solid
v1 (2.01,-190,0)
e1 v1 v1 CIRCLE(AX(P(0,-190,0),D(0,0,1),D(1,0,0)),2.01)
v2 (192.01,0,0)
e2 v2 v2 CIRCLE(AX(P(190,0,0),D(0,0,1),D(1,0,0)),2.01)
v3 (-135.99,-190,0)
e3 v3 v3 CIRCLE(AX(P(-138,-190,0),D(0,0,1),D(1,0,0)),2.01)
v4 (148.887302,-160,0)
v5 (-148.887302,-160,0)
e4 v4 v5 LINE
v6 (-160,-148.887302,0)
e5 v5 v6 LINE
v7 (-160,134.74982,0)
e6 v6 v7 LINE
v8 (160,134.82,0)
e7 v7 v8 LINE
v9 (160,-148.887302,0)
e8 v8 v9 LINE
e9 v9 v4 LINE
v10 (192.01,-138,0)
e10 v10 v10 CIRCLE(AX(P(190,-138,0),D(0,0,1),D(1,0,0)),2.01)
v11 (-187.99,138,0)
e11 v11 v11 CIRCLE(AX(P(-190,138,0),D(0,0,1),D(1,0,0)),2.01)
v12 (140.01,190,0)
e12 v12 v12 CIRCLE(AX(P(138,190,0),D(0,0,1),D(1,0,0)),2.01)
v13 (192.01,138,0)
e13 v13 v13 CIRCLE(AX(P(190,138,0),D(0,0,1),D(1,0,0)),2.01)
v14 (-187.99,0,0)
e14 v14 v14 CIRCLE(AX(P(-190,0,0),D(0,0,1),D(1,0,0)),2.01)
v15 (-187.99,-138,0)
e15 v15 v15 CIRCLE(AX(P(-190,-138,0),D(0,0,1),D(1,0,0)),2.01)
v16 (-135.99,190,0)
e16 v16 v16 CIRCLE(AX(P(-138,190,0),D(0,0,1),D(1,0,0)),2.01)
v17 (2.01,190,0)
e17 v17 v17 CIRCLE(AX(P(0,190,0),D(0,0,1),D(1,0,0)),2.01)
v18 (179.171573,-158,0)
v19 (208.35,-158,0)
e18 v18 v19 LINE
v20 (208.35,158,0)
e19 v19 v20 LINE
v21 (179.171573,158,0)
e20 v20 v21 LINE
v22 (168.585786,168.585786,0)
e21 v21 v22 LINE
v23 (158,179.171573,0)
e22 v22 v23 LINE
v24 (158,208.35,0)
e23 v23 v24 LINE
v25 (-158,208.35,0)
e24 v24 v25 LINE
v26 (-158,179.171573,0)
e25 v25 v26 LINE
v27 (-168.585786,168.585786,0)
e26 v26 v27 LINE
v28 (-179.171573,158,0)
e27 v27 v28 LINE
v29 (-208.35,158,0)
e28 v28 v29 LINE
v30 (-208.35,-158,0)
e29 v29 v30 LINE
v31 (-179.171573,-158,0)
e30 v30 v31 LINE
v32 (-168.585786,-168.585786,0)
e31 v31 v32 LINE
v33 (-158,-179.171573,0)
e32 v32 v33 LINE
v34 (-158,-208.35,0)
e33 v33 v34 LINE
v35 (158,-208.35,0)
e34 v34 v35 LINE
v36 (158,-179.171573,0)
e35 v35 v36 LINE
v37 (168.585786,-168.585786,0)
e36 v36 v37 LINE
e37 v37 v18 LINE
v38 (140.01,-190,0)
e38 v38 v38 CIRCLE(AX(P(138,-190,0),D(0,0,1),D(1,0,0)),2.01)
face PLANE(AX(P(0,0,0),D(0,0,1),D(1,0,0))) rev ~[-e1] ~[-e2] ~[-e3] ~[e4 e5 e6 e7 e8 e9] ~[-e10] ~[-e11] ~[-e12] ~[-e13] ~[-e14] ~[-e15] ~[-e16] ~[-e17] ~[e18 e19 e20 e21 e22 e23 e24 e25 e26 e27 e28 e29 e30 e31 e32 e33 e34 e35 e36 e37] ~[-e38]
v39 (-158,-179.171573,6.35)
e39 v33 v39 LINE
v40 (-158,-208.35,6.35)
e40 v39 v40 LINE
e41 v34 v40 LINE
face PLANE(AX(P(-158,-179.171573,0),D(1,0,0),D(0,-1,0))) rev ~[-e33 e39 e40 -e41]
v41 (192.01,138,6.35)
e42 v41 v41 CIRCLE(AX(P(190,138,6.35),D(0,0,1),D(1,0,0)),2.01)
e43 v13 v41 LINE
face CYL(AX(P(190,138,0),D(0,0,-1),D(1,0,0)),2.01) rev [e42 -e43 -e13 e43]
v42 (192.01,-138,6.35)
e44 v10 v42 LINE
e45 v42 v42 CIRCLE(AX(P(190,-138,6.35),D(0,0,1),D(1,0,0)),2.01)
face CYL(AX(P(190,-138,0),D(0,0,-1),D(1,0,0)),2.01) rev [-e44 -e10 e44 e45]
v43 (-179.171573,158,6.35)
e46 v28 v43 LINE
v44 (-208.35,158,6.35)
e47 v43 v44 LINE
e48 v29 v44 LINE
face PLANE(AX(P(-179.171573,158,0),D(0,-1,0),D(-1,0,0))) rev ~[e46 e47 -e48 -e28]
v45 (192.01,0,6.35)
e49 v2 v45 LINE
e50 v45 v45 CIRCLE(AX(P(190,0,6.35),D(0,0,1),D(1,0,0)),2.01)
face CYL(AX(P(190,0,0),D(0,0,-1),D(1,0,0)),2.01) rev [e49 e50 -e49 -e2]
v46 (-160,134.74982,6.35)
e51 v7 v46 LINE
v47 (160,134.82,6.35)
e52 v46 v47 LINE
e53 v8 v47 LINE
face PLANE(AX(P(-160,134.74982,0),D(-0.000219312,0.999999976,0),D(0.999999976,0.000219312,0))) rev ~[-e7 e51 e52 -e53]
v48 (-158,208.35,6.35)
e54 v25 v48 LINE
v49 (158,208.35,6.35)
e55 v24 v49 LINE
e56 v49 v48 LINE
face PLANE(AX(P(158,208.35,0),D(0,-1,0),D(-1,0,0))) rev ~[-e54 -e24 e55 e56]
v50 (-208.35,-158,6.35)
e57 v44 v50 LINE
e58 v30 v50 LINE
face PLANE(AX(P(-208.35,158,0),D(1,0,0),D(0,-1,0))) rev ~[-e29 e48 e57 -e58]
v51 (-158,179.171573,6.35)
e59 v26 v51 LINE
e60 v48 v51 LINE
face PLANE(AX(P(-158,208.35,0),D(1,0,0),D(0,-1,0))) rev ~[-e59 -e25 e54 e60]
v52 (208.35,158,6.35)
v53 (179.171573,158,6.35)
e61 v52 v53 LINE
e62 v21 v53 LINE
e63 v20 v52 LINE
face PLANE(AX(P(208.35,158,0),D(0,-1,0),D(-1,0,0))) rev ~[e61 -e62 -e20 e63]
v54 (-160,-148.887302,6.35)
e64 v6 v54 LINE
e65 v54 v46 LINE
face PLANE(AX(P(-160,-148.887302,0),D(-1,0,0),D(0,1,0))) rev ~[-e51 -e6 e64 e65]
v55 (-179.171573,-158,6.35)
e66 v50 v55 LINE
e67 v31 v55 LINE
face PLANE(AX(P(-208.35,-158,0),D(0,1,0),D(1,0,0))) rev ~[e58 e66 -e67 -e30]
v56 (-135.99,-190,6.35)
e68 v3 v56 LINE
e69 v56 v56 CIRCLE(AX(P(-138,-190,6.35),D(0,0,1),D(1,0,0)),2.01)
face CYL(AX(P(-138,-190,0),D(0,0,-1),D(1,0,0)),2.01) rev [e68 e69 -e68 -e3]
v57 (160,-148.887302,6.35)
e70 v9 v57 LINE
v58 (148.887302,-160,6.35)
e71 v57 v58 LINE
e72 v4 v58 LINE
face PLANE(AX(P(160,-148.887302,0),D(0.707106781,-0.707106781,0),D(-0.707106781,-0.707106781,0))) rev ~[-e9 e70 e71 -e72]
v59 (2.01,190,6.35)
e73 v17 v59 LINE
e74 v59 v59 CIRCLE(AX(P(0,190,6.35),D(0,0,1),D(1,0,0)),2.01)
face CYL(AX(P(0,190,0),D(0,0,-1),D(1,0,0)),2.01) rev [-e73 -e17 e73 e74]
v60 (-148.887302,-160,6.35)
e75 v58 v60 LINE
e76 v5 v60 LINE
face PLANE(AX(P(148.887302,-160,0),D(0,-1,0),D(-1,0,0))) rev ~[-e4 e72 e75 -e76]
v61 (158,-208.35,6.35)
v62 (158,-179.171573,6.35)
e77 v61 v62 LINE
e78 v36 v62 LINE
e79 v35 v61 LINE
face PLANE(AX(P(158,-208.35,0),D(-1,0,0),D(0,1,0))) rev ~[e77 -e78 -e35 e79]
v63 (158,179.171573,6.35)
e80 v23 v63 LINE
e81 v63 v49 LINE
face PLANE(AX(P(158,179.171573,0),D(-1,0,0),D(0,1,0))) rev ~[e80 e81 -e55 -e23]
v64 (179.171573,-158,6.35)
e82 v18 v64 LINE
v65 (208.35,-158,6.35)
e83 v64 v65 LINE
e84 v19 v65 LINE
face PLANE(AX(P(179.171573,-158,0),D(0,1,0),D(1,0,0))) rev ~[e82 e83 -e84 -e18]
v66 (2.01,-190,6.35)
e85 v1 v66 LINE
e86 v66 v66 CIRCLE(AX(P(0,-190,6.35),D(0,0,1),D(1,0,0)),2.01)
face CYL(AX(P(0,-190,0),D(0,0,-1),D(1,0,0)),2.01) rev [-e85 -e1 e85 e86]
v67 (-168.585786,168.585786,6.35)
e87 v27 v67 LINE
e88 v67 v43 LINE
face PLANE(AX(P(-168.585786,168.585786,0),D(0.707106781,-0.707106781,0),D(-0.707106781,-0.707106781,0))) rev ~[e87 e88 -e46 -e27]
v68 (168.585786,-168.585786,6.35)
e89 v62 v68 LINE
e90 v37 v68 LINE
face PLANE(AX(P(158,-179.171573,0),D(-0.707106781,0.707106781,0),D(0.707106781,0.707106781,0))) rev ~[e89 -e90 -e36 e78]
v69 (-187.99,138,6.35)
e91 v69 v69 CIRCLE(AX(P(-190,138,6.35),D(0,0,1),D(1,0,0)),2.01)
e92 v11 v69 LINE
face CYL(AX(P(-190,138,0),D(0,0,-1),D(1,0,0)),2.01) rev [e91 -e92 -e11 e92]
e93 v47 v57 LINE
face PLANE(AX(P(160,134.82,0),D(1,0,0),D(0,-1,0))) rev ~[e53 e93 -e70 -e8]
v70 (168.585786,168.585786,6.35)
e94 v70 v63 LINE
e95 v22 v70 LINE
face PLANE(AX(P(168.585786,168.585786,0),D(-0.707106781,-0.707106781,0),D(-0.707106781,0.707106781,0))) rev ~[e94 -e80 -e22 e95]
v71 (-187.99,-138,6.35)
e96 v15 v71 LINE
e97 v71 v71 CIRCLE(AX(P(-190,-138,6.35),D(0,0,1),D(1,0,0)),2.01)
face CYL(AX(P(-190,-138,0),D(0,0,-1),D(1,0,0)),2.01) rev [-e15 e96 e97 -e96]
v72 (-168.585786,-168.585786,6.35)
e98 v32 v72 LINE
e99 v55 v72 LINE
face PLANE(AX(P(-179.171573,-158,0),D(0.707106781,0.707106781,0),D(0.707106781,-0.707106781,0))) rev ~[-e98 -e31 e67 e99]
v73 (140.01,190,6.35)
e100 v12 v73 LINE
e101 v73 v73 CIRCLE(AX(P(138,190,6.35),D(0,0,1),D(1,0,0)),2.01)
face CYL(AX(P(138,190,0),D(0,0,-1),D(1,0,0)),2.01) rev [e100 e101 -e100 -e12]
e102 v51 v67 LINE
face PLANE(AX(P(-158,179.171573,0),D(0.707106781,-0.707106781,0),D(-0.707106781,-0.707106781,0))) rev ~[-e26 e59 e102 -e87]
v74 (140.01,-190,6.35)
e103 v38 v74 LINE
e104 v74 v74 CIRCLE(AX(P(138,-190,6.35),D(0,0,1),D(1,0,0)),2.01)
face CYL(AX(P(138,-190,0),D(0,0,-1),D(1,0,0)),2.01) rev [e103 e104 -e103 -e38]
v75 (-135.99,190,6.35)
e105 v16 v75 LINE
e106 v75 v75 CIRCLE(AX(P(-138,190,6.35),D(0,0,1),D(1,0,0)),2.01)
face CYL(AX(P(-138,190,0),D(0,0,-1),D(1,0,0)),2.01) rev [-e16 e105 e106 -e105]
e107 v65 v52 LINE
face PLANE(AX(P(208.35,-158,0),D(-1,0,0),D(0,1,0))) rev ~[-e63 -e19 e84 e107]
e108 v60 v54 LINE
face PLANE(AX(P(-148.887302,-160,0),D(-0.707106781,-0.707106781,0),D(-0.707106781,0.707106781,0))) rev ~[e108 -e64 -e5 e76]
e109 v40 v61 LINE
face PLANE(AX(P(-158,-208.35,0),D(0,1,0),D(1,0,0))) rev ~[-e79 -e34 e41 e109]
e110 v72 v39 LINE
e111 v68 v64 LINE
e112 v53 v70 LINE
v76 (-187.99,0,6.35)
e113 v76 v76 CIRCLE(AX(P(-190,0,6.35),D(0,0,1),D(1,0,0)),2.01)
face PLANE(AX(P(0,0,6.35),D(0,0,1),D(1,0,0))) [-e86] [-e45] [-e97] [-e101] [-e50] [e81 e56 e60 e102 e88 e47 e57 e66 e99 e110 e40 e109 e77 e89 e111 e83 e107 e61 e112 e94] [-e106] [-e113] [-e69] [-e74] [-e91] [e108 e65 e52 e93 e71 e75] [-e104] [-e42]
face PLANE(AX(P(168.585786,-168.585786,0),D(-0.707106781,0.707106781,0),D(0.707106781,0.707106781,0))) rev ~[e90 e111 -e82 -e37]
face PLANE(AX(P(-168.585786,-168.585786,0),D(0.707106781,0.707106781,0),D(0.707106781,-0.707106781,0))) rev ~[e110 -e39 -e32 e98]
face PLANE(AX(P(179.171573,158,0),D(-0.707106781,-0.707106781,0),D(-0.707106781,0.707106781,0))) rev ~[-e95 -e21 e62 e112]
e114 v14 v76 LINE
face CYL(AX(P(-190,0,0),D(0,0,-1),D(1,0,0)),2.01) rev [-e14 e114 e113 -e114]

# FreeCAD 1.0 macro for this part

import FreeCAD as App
import Part
import Sketcher

V = App.Vector
Q = App.Units.Quantity


def add_polygon(sketch, points):
    """Adds a closed chain of lines whose ends are joined by coincident constraints."""
    first, n = sketch.GeometryCount, len(points)
    for a, b in zip(points, points[1:] + points[:1]):
        sketch.addGeometry(Part.LineSegment(App.Vector(*a, 0), App.Vector(*b, 0)), False)
    for i in range(n):
        sketch.addConstraint(Sketcher.Constraint("Coincident", first + i, 2, first + (i + 1) % n, 1))

doc = App.newDocument("Part")
body = doc.addObject("PartDesign::Body", "Body")

sketch1 = body.newObject("Sketcher::SketchObject", "Sketch")
sketch1.AttachmentSupport = (doc.getObject("XY_Plane"), [""])
sketch1.MapMode = "FlatFace"
add_polygon(sketch1, [(-158, 208.3), (-158, 179.2), (-168.6, 168.6), (-179.2, 158), (-208.3, 158), (-208.3, -158), (-179.2, -158), (-168.6, -168.6), (-158, -179.2), (-158, -208.3), (158, -208.3), (158, -179.2), (168.6, -168.6), (179.2, -158), (208.3, -158), (208.3, 158), (179.2, 158), (168.6, 168.6), (158, 179.2), (158, 208.3)])
sketch1.addGeometry(Part.Circle(V(-138, -190, 0), V(0, 0, 1), 2), False)
sketch1.addGeometry(Part.Circle(V(-190, -138, 0), V(0, 0, 1), 2), False)
sketch1.addGeometry(Part.Circle(V(0, -190, 0), V(0, 0, 1), 2), False)
sketch1.addGeometry(Part.Circle(V(-190, 0, 0), V(0, 0, 1), 2), False)
sketch1.addGeometry(Part.Circle(V(138, -190, 0), V(0, 0, 1), 2), False)
sketch1.addGeometry(Part.Circle(V(190, -138, 0), V(0, 0, 1), 2), False)
add_polygon(sketch1, [(160, 134.8), (160, -148.9), (148.9, -160), (-148.9, -160), (-160, -148.9), (-160, 134.7)])
sketch1.addGeometry(Part.Circle(V(190, 0, 0), V(0, 0, 1), 2), False)
sketch1.addGeometry(Part.Circle(V(-190, 138, 0), V(0, 0, 1), 2), False)
sketch1.addGeometry(Part.Circle(V(-138, 190, 0), V(0, 0, 1), 2), False)
sketch1.addGeometry(Part.Circle(V(0, 190, 0), V(0, 0, 1), 2), False)
sketch1.addGeometry(Part.Circle(V(190, 138, 0), V(0, 0, 1), 2), False)
sketch1.addGeometry(Part.Circle(V(138, 190, 0), V(0, 0, 1), 2), False)
sketch1.addConstraint([
    Sketcher.Constraint("Vertical", 0),
    Sketcher.Constraint("Horizontal", 3),
    Sketcher.Constraint("Vertical", 4),
    Sketcher.Constraint("Horizontal", 5),
    Sketcher.Constraint("Vertical", 8),
    Sketcher.Constraint("Horizontal", 9),
    Sketcher.Constraint("Vertical", 10),
    Sketcher.Constraint("Horizontal", 13),
    Sketcher.Constraint("Vertical", 14),
    Sketcher.Constraint("Horizontal", 15),
    Sketcher.Constraint("Vertical", 18),
    Sketcher.Constraint("Horizontal", 19),
    Sketcher.Constraint("Vertical", 26),
    Sketcher.Constraint("Horizontal", 28),
    Sketcher.Constraint("Vertical", 30),
    Sketcher.Constraint("Equal", 20, 21),
    Sketcher.Constraint("Equal", 21, 22),
    Sketcher.Constraint("Equal", 22, 23),
    Sketcher.Constraint("Equal", 23, 24),
    Sketcher.Constraint("Equal", 24, 25),
    Sketcher.Constraint("Equal", 25, 32),
    Sketcher.Constraint("Equal", 32, 33),
    Sketcher.Constraint("Equal", 33, 34),
    Sketcher.Constraint("Equal", 34, 35),
    Sketcher.Constraint("Equal", 35, 36),
    Sketcher.Constraint("Equal", 36, 37),
    Sketcher.Constraint("Symmetric", 23, 3, 32, 3, -1, 1),
    Sketcher.Constraint("Symmetric", 25, 3, 33, 3, -1, 1),
    Sketcher.Constraint("Symmetric", 24, 3, 34, 3, -1, 1),
    Sketcher.Constraint("Symmetric", 22, 3, 35, 3, -1, 1),
    Sketcher.Constraint("Symmetric", 21, 3, 36, 3, -1, 1),
    Sketcher.Constraint("Symmetric", 20, 3, 37, 3, -1, 1),
    Sketcher.Constraint("Symmetric", 0, 2, 10, 2, -1, 1),
    Sketcher.Constraint("Symmetric", 1, 2, 11, 2, -1, 1),
    Sketcher.Constraint("Symmetric", 2, 2, 12, 2, -1, 1),
    Sketcher.Constraint("Symmetric", 4, 2, 14, 2, -1, 1),
    Sketcher.Constraint("Symmetric", 6, 2, 16, 2, -1, 1),
    Sketcher.Constraint("Symmetric", 7, 2, 17, 2, -1, 1),
    Sketcher.Constraint("Symmetric", 20, 3, 24, 3, -2),
    Sketcher.Constraint("Symmetric", 21, 3, 25, 3, -2),
    Sketcher.Constraint("Symmetric", 7, 2, 10, 2, -2),
    Sketcher.Constraint("Symmetric", 6, 2, 11, 2, -2),
    Sketcher.Constraint("Symmetric", 5, 2, 12, 2, -2),
    Sketcher.Constraint("Symmetric", 26, 2, 29, 2, -2),
    Sketcher.Constraint("PointOnObject", 22, 3, -2),
    Sketcher.Constraint("PointOnObject", 23, 3, -1),
    Sketcher.Constraint("Parallel", 1, 2),
    Sketcher.Constraint("Perpendicular", 2, 6),
    Sketcher.Constraint("Perpendicular", 12, 16),
    Sketcher.Constraint("Perpendicular", 17, 27),
    Sketcher.Constraint("Perpendicular", 27, 29),
    Sketcher.Constraint("Horizontal", 20, 3, 22, 3),
    Sketcher.Constraint("Vertical", 21, 3, 23, 3),
    Sketcher.Constraint("Equal", 15, 0),
    Sketcher.Constraint("Equal", 19, 4),
    Sketcher.Constraint("Equal", 0, 8),
    Sketcher.Constraint("Equal", 1, 2),
    Sketcher.Constraint("Diameter", 20, Q("4.02 mm")),
    Sketcher.Constraint("DistanceX", 9, 1, 9, 2, Q("316 mm")),
    Sketcher.Constraint("DistanceX", 20, 3, -1, 1, Q("138 mm")),
    Sketcher.Constraint("DistanceY", 20, 3, -1, 1, Q("190 mm")),
    Sketcher.Constraint("DistanceX", 21, 3, -1, 1, Q("190 mm")),
    Sketcher.Constraint("DistanceY", 21, 3, -1, 1, Q("138 mm")),
    Sketcher.Constraint("DistanceX", -1, 1, 26, 2, Q("160 mm")),
    Sketcher.Constraint("DistanceY", 27, 2, -1, 1, Q("160 mm")),
    Sketcher.Constraint("DistanceX", 3, 2, -1, 1, Q("208.35 mm")),
    Sketcher.Constraint("DistanceY", -1, 1, 31, 2, Q("134.82 mm")),
    Sketcher.Constraint("DistanceY", 26, 2, 26, 1, Q("283.707302 mm")),
    Sketcher.Constraint("DistanceY", 30, 1, 30, 2, Q("283.637122 mm")),
    Sketcher.Constraint("DistanceX", 3, 2, 3, 1, Q("29.178427 mm")),
])
pad1 = body.newObject("PartDesign::Pad", "Pad")
pad1.Profile = sketch1
pad1.Length = 6.35

doc.recompute()
